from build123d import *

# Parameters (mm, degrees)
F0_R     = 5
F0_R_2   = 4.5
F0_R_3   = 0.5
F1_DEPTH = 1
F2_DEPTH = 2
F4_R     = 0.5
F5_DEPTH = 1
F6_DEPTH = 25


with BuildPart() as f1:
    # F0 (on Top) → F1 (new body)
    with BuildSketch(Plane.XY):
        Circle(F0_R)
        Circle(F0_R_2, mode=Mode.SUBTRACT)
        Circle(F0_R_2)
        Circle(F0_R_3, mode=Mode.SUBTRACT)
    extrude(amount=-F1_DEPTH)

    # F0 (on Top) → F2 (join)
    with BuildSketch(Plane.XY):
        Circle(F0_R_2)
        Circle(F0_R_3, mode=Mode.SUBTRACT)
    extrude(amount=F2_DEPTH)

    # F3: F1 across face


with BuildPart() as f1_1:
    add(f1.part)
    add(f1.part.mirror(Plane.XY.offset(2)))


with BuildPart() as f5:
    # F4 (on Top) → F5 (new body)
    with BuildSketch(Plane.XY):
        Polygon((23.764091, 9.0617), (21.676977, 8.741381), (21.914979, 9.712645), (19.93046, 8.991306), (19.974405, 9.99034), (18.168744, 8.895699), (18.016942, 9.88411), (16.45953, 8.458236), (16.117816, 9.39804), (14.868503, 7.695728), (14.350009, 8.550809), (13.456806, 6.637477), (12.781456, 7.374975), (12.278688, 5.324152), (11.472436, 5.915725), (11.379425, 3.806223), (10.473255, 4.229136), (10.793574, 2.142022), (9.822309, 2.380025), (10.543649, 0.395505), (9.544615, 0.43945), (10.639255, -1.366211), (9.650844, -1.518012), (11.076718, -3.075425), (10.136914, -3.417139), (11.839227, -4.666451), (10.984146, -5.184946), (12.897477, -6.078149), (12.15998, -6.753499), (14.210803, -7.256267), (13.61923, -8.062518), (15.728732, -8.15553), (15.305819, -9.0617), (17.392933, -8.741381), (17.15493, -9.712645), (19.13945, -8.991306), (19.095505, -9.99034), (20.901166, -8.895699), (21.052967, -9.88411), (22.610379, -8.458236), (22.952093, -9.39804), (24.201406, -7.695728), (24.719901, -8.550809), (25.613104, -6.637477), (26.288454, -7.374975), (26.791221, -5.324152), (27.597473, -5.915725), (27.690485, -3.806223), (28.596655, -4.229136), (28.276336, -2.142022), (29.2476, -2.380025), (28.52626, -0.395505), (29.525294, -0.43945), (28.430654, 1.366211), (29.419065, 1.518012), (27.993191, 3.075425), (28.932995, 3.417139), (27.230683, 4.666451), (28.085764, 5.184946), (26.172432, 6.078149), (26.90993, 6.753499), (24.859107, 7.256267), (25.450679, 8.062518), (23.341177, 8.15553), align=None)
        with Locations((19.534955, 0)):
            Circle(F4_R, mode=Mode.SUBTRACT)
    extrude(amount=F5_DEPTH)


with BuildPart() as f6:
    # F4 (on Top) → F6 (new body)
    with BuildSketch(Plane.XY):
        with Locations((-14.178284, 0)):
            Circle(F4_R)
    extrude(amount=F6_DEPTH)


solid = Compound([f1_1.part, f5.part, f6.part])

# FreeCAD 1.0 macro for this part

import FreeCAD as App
import Part
import Sketcher
from FreeCAD import Vector

doc = App.newDocument("Part")
body = doc.addObject("PartDesign::Body", "Body")

# Sketch on XY plane
sketch1 = doc.addObject("Sketcher::SketchObject", "Sketch")
body.addObject(sketch1)
sketch1.AttachmentSupport = (doc.XY_Plane, [""])
sketch1.MapMode = "FlatFace"
sketch1.addGeometry([
    Part.Circle(Vector(0, 0, 0), Vector(0, 0, 1), 5),
    Part.Circle(Vector(0, 0, 0), Vector(0, 0, 1), 0.5),
], False)
sketch1.addConstraint([
    Sketcher.Constraint("Coincident", 0, 3, -1, 1),
    Sketcher.Constraint("Coincident", 1, 3, -1, 1),
    Sketcher.Constraint("Diameter", 0, 10.0),
    Sketcher.Constraint("Diameter", 1, 1.0),
])
pad1 = doc.addObject("PartDesign::Pad", "Pad")
body.addObject(pad1)
pad1.Profile = sketch1
pad1.Length = 1
pad1.Reversed = True

# Sketch on XY plane
sketch2 = doc.addObject("Sketcher::SketchObject", "Sketch001")
body.addObject(sketch2)
sketch2.AttachmentSupport = (doc.XY_Plane, [""])
sketch2.MapMode = "FlatFace"
sketch2.addGeometry([
    Part.Circle(Vector(0, 0, 0), Vector(0, 0, 1), 4.5),
    Part.Circle(Vector(0, 0, 0), Vector(0, 0, 1), 0.5),
], False)
sketch2.addConstraint([
    Sketcher.Constraint("Coincident", 0, 3, -1, 1),
    Sketcher.Constraint("Coincident", 1, 3, -1, 1),
    Sketcher.Constraint("Diameter", 0, 9.0),
    Sketcher.Constraint("Diameter", 1, 1.0),
])
pad2 = doc.addObject("PartDesign::Pad", "Pad001")
body.addObject(pad2)
pad2.Profile = sketch2
pad2.Length = 2
body2 = doc.addObject("PartDesign::Body", "Body001")
doc.recompute()

body2.BaseFeature = body
doc.recompute()

mirroring = doc.addObject("Part::Mirroring", "Mirroring")
mirroring.Source = body
mirroring.Base = Vector(0, 0, 2)
mirroring.Normal = Vector(0, 0, 1)
body3 = doc.addObject("PartDesign::Body", "Body002")
body3.BaseFeature = mirroring
boolean = doc.addObject("PartDesign::Boolean", "Boolean")
body2.addObject(boolean)
boolean.Type = "Fuse"
boolean.addObjects([body3])
doc.recompute()
body4 = doc.addObject("PartDesign::Body", "Body003")

# Sketch on XY plane
sketch3 = doc.addObject("Sketcher::SketchObject", "Sketch002")
body4.addObject(sketch3)
sketch3.AttachmentSupport = (doc.getObject("XY_Plane003"), [""])
sketch3.MapMode = "FlatFace"
sketch3.addGeometry([
    Part.LineSegment(Vector(23.8, 9.1, 0), Vector(21.7, 8.7, 0)),  # 0
    Part.LineSegment(Vector(21.7, 8.7, 0), Vector(21.9, 9.7, 0)),  # 1
    Part.LineSegment(Vector(21.9, 9.7, 0), Vector(19.9, 9, 0)),  # 2
    Part.LineSegment(Vector(19.9, 9, 0), Vector(20, 10, 0)),  # 3
    Part.LineSegment(Vector(20, 10, 0), Vector(18.2, 8.9, 0)),  # 4
    Part.LineSegment(Vector(18.2, 8.9, 0), Vector(18, 9.9, 0)),  # 5
    Part.LineSegment(Vector(18, 9.9, 0), Vector(16.5, 8.5, 0)),  # 6
    Part.LineSegment(Vector(16.5, 8.5, 0), Vector(16.1, 9.4, 0)),  # 7
    Part.LineSegment(Vector(16.1, 9.4, 0), Vector(14.9, 7.7, 0)),  # 8
    Part.LineSegment(Vector(14.9, 7.7, 0), Vector(14.4, 8.6, 0)),  # 9
    Part.LineSegment(Vector(14.4, 8.6, 0), Vector(13.5, 6.6, 0)),  # 10
    Part.LineSegment(Vector(13.5, 6.6, 0), Vector(12.8, 7.4, 0)),  # 11
    Part.LineSegment(Vector(12.8, 7.4, 0), Vector(12.3, 5.3, 0)),  # 12
    Part.LineSegment(Vector(12.3, 5.3, 0), Vector(11.5, 5.9, 0)),  # 13
    Part.LineSegment(Vector(11.5, 5.9, 0), Vector(11.4, 3.8, 0)),  # 14
    Part.LineSegment(Vector(11.4, 3.8, 0), Vector(10.5, 4.2, 0)),  # 15
    Part.LineSegment(Vector(10.5, 4.2, 0), Vector(10.8, 2.1, 0)),  # 16
    Part.LineSegment(Vector(10.8, 2.1, 0), Vector(9.8, 2.4, 0)),  # 17
    Part.LineSegment(Vector(9.8, 2.4, 0), Vector(10.5, 0.4, 0)),  # 18
    Part.LineSegment(Vector(10.5, 0.4, 0), Vector(9.5, 0.4, 0)),  # 19
    Part.LineSegment(Vector(9.5, 0.4, 0), Vector(10.6, -1.4, 0)),  # 20
    Part.LineSegment(Vector(10.6, -1.4, 0), Vector(9.7, -1.5, 0)),  # 21
    Part.LineSegment(Vector(9.7, -1.5, 0), Vector(11.1, -3.1, 0)),  # 22
    Part.LineSegment(Vector(11.1, -3.1, 0), Vector(10.1, -3.4, 0)),  # 23
    Part.LineSegment(Vector(10.1, -3.4, 0), Vector(11.8, -4.7, 0)),  # 24
    Part.LineSegment(Vector(11.8, -4.7, 0), Vector(11, -5.2, 0)),  # 25
    Part.LineSegment(Vector(11, -5.2, 0), Vector(12.9, -6.1, 0)),  # 26
    Part.LineSegment(Vector(12.9, -6.1, 0), Vector(12.2, -6.8, 0)),  # 27
    Part.LineSegment(Vector(12.2, -6.8, 0), Vector(14.2, -7.3, 0)),  # 28
    Part.LineSegment(Vector(14.2, -7.3, 0), Vector(13.6, -8.1, 0)),  # 29
    Part.LineSegment(Vector(13.6, -8.1, 0), Vector(15.7, -8.2, 0)),  # 30
    Part.LineSegment(Vector(15.7, -8.2, 0), Vector(15.3, -9.1, 0)),  # 31
    Part.LineSegment(Vector(15.3, -9.1, 0), Vector(17.4, -8.7, 0)),  # 32
    Part.LineSegment(Vector(17.4, -8.7, 0), Vector(17.2, -9.7, 0)),  # 33
    Part.LineSegment(Vector(17.2, -9.7, 0), Vector(19.1, -9, 0)),  # 34
    Part.LineSegment(Vector(19.1, -9, 0), Vector(19.1, -10, 0)),  # 35
    Part.LineSegment(Vector(19.1, -10, 0), Vector(20.9, -8.9, 0)),  # 36
    Part.LineSegment(Vector(20.9, -8.9, 0), Vector(21.1, -9.9, 0)),  # 37
    Part.LineSegment(Vector(21.1, -9.9, 0), Vector(22.6, -8.5, 0)),  # 38
    Part.LineSegment(Vector(22.6, -8.5, 0), Vector(23, -9.4, 0)),  # 39
    Part.LineSegment(Vector(23, -9.4, 0), Vector(24.2, -7.7, 0)),  # 40
    Part.LineSegment(Vector(24.2, -7.7, 0), Vector(24.7, -8.6, 0)),  # 41
    Part.LineSegment(Vector(24.7, -8.6, 0), Vector(25.6, -6.6, 0)),  # 42
    Part.LineSegment(Vector(25.6, -6.6, 0), Vector(26.3, -7.4, 0)),  # 43
    Part.LineSegment(Vector(26.3, -7.4, 0), Vector(26.8, -5.3, 0)),  # 44
    Part.LineSegment(Vector(26.8, -5.3, 0), Vector(27.6, -5.9, 0)),  # 45
    Part.LineSegment(Vector(27.6, -5.9, 0), Vector(27.7, -3.8, 0)),  # 46
    Part.LineSegment(Vector(27.7, -3.8, 0), Vector(28.6, -4.2, 0)),  # 47
    Part.LineSegment(Vector(28.6, -4.2, 0), Vector(28.3, -2.1, 0)),  # 48
    Part.LineSegment(Vector(28.3, -2.1, 0), Vector(29.2, -2.4, 0)),  # 49
    Part.LineSegment(Vector(29.2, -2.4, 0), Vector(28.5, -0.4, 0)),  # 50
    Part.LineSegment(Vector(28.5, -0.4, 0), Vector(29.5, -0.4, 0)),  # 51
    Part.LineSegment(Vector(29.5, -0.4, 0), Vector(28.4, 1.4, 0)),  # 52
    Part.LineSegment(Vector(28.4, 1.4, 0), Vector(29.4, 1.5, 0)),  # 53
    Part.LineSegment(Vector(29.4, 1.5, 0), Vector(28, 3.1, 0)),  # 54
    Part.LineSegment(Vector(28, 3.1, 0), Vector(28.9, 3.4, 0)),  # 55
    Part.LineSegment(Vector(28.9, 3.4, 0), Vector(27.2, 4.7, 0)),  # 56
    Part.LineSegment(Vector(27.2, 4.7, 0), Vector(28.1, 5.2, 0)),  # 57
    Part.LineSegment(Vector(28.1, 5.2, 0), Vector(26.2, 6.1, 0)),  # 58
    Part.LineSegment(Vector(26.2, 6.1, 0), Vector(26.9, 6.8, 0)),  # 59
    Part.LineSegment(Vector(26.9, 6.8, 0), Vector(24.9, 7.3, 0)),  # 60
    Part.LineSegment(Vector(24.9, 7.3, 0), Vector(25.5, 8.1, 0)),  # 61
    Part.LineSegment(Vector(25.5, 8.1, 0), Vector(23.3, 8.2, 0)),  # 62
    Part.LineSegment(Vector(23.3, 8.2, 0), Vector(23.8, 9.1, 0)),  # 63
    Part.Circle(Vector(19.5, 0, 0), Vector(0, 0, 1), 0.5),  # 64
], False)
sketch3.addConstraint([
    Sketcher.Constraint("Coincident", 0, 2, 1, 1),
    Sketcher.Constraint("Coincident", 1, 2, 2, 1),
    Sketcher.Constraint("Coincident", 2, 2, 3, 1),
    Sketcher.Constraint("Coincident", 3, 2, 4, 1),
    Sketcher.Constraint("Coincident", 4, 2, 5, 1),
    Sketcher.Constraint("Coincident", 5, 2, 6, 1),
    Sketcher.Constraint("Coincident", 6, 2, 7, 1),
    Sketcher.Constraint("Coincident", 7, 2, 8, 1),
    Sketcher.Constraint("Coincident", 8, 2, 9, 1),
    Sketcher.Constraint("Coincident", 9, 2, 10, 1),
    Sketcher.Constraint("Coincident", 10, 2, 11, 1),
    Sketcher.Constraint("Coincident", 11, 2, 12, 1),
    Sketcher.Constraint("Coincident", 12, 2, 13, 1),
    Sketcher.Constraint("Coincident", 13, 2, 14, 1),
    Sketcher.Constraint("Coincident", 14, 2, 15, 1),
    Sketcher.Constraint("Coincident", 15, 2, 16, 1),
    Sketcher.Constraint("Coincident", 16, 2, 17, 1),
    Sketcher.Constraint("Coincident", 17, 2, 18, 1),
    Sketcher.Constraint("Coincident", 18, 2, 19, 1),
    Sketcher.Constraint("Coincident", 19, 2, 20, 1),
    Sketcher.Constraint("Coincident", 20, 2, 21, 1),
    Sketcher.Constraint("Coincident", 21, 2, 22, 1),
    Sketcher.Constraint("Coincident", 22, 2, 23, 1),
    Sketcher.Constraint("Coincident", 23, 2, 24, 1),
    Sketcher.Constraint("Coincident", 24, 2, 25, 1),
    Sketcher.Constraint("Coincident", 25, 2, 26, 1),
    Sketcher.Constraint("Coincident", 26, 2, 27, 1),
    Sketcher.Constraint("Coincident", 27, 2, 28, 1),
    Sketcher.Constraint("Coincident", 28, 2, 29, 1),
    Sketcher.Constraint("Coincident", 29, 2, 30, 1),
    Sketcher.Constraint("Coincident", 30, 2, 31, 1),
    Sketcher.Constraint("Coincident", 31, 2, 32, 1),
    Sketcher.Constraint("Coincident", 32, 2, 33, 1),
    Sketcher.Constraint("Coincident", 33, 2, 34, 1),
    Sketcher.Constraint("Coincident", 34, 2, 35, 1),
    Sketcher.Constraint("Coincident", 35, 2, 36, 1),
    Sketcher.Constraint("Coincident", 36, 2, 37, 1),
    Sketcher.Constraint("Coincident", 37, 2, 38, 1),
    Sketcher.Constraint("Coincident", 38, 2, 39, 1),
    Sketcher.Constraint("Coincident", 39, 2, 40, 1),
    Sketcher.Constraint("Coincident", 40, 2, 41, 1),
    Sketcher.Constraint("Coincident", 41, 2, 42, 1),
    Sketcher.Constraint("Coincident", 42, 2, 43, 1),
    Sketcher.Constraint("Coincident", 43, 2, 44, 1),
    Sketcher.Constraint("Coincident", 44, 2, 45, 1),
    Sketcher.Constraint("Coincident", 45, 2, 46, 1),
    Sketcher.Constraint("Coincident", 46, 2, 47, 1),
    Sketcher.Constraint("Coincident", 47, 2, 48, 1),
    Sketcher.Constraint("Coincident", 48, 2, 49, 1),
    Sketcher.Constraint("Coincident", 49, 2, 50, 1),
    Sketcher.Constraint("Coincident", 50, 2, 51, 1),
    Sketcher.Constraint("Coincident", 51, 2, 52, 1),
    Sketcher.Constraint("Coincident", 52, 2, 53, 1),
    Sketcher.Constraint("Coincident", 53, 2, 54, 1),
    Sketcher.Constraint("Coincident", 54, 2, 55, 1),
    Sketcher.Constraint("Coincident", 55, 2, 56, 1),
    Sketcher.Constraint("Coincident", 56, 2, 57, 1),
    Sketcher.Constraint("Coincident", 57, 2, 58, 1),
    Sketcher.Constraint("Coincident", 58, 2, 59, 1),
    Sketcher.Constraint("Coincident", 59, 2, 60, 1),
    Sketcher.Constraint("Coincident", 60, 2, 61, 1),
    Sketcher.Constraint("Coincident", 61, 2, 62, 1),
    Sketcher.Constraint("Coincident", 62, 2, 63, 1),
    Sketcher.Constraint("Coincident", 63, 2, 0, 1),
    Sketcher.Constraint("PointOnObject", 64, 3, -1),
    Sketcher.Constraint("Perpendicular", 0, 16),
    Sketcher.Constraint("Perpendicular", 1, 17),
    Sketcher.Constraint("Perpendicular", 2, 18),
    Sketcher.Constraint("Perpendicular", 3, 19),
    Sketcher.Constraint("Perpendicular", 4, 20),
    Sketcher.Constraint("Perpendicular", 5, 21),
    Sketcher.Constraint("Perpendicular", 6, 22),
    Sketcher.Constraint("Perpendicular", 7, 23),
    Sketcher.Constraint("Perpendicular", 8, 24),
    Sketcher.Constraint("Perpendicular", 9, 25),
    Sketcher.Constraint("Perpendicular", 10, 26),
    Sketcher.Constraint("Perpendicular", 11, 27),
    Sketcher.Constraint("Perpendicular", 12, 28),
    Sketcher.Constraint("Perpendicular", 13, 29),
    Sketcher.Constraint("Perpendicular", 14, 30),
    Sketcher.Constraint("Perpendicular", 15, 31),
    Sketcher.Constraint("Perpendicular", 16, 32),
    Sketcher.Constraint("Perpendicular", 17, 33),
    Sketcher.Constraint("Perpendicular", 18, 34),
    Sketcher.Constraint("Perpendicular", 19, 35),
    Sketcher.Constraint("Perpendicular", 20, 36),
    Sketcher.Constraint("Perpendicular", 21, 37),
    Sketcher.Constraint("Perpendicular", 22, 38),
    Sketcher.Constraint("Perpendicular", 23, 39),
    Sketcher.Constraint("Perpendicular", 24, 40),
    Sketcher.Constraint("Perpendicular", 25, 41),
    Sketcher.Constraint("Perpendicular", 26, 42),
    Sketcher.Constraint("Perpendicular", 27, 43),
    Sketcher.Constraint("Perpendicular", 28, 44),
    Sketcher.Constraint("Perpendicular", 29, 45),
    Sketcher.Constraint("Perpendicular", 30, 46),
    Sketcher.Constraint("Perpendicular", 31, 47),
    Sketcher.Constraint("Perpendicular", 32, 48),
    Sketcher.Constraint("Perpendicular", 33, 49),
    Sketcher.Constraint("Perpendicular", 34, 50),
    Sketcher.Constraint("Perpendicular", 35, 51),
    Sketcher.Constraint("Perpendicular", 36, 52),
    Sketcher.Constraint("Perpendicular", 37, 53),
    Sketcher.Constraint("Perpendicular", 38, 54),
    Sketcher.Constraint("Perpendicular", 39, 55),
    Sketcher.Constraint("Perpendicular", 40, 56),
    Sketcher.Constraint("Perpendicular", 41, 57),
    Sketcher.Constraint("Perpendicular", 42, 58),
    Sketcher.Constraint("Perpendicular", 43, 59),
    Sketcher.Constraint("Perpendicular", 44, 60),
    Sketcher.Constraint("Perpendicular", 45, 61),
    Sketcher.Constraint("Perpendicular", 46, 62),
    Sketcher.Constraint("Perpendicular", 47, 63),
    Sketcher.Constraint("Equal", 0, 2),
    Sketcher.Constraint("Equal", 1, 3),
    Sketcher.Constraint("Equal", 2, 4),
    Sketcher.Constraint("Equal", 3, 5),
    Sketcher.Constraint("Equal", 4, 6),
    Sketcher.Constraint("Equal", 5, 7),
    Sketcher.Constraint("Equal", 6, 8),
    Sketcher.Constraint("Equal", 7, 9),
    Sketcher.Constraint("Equal", 8, 10),
    Sketcher.Constraint("Equal", 9, 11),
    Sketcher.Constraint("Equal", 10, 12),
    Sketcher.Constraint("Equal", 11, 13),
    Sketcher.Constraint("Equal", 12, 14),
    Sketcher.Constraint("Equal", 13, 15),
    Sketcher.Constraint("Equal", 14, 16),
    Sketcher.Constraint("Equal", 15, 17),
    Sketcher.Constraint("Equal", 16, 18),
    Sketcher.Constraint("Equal", 17, 19),
    Sketcher.Constraint("Equal", 18, 20),
    Sketcher.Constraint("Equal", 19, 21),
    Sketcher.Constraint("Equal", 20, 22),
    Sketcher.Constraint("Equal", 21, 23),
    Sketcher.Constraint("Equal", 22, 24),
    Sketcher.Constraint("Equal", 23, 25),
    Sketcher.Constraint("Equal", 24, 26),
    Sketcher.Constraint("Equal", 25, 27),
    Sketcher.Constraint("Equal", 26, 28),
    Sketcher.Constraint("Equal", 27, 29),
    Sketcher.Constraint("Equal", 28, 30),
    Sketcher.Constraint("Equal", 29, 31),
    Sketcher.Constraint("Equal", 30, 32),
    Sketcher.Constraint("Equal", 31, 33),
    Sketcher.Constraint("Equal", 32, 34),
    Sketcher.Constraint("Equal", 33, 35),
    Sketcher.Constraint("Equal", 34, 36),
    Sketcher.Constraint("Equal", 35, 37),
    Sketcher.Constraint("Equal", 36, 38),
    Sketcher.Constraint("Equal", 37, 39),
    Sketcher.Constraint("Equal", 38, 40),
    Sketcher.Constraint("Equal", 39, 41),
    Sketcher.Constraint("Equal", 40, 42),
    Sketcher.Constraint("Equal", 41, 43),
    Sketcher.Constraint("Equal", 42, 44),
    Sketcher.Constraint("Equal", 43, 45),
    Sketcher.Constraint("Equal", 44, 46),
    Sketcher.Constraint("Equal", 45, 47),
    Sketcher.Constraint("Equal", 46, 48),
    Sketcher.Constraint("Equal", 47, 49),
    Sketcher.Constraint("Equal", 48, 50),
    Sketcher.Constraint("Equal", 49, 51),
    Sketcher.Constraint("Equal", 50, 52),
    Sketcher.Constraint("Equal", 51, 53),
    Sketcher.Constraint("Equal", 52, 54),
    Sketcher.Constraint("Equal", 53, 55),
    Sketcher.Constraint("Equal", 54, 56),
    Sketcher.Constraint("Equal", 55, 57),
    Sketcher.Constraint("Equal", 56, 58),
    Sketcher.Constraint("Equal", 57, 59),
    Sketcher.Constraint("Equal", 58, 60),
    Sketcher.Constraint("Equal", 59, 61),
    Sketcher.Constraint("Diameter", 64, 1.0),
    Sketcher.Constraint("Distance", 1, 0.999999),
    Sketcher.Constraint("DistanceY", -1, 1, 4, 2, 8.895699),
    Sketcher.Constraint("DistanceY", 27, 2, -1, 1, 6.753499),
    Sketcher.Constraint("DistanceY", 31, 2, -1, 1, 9.0617),
    Sketcher.Constraint("DistanceY", 36, 2, -1, 1, 8.895699),
    Sketcher.Constraint("DistanceX", -1, 1, 41, 2, 24.719901),
    Sketcher.Constraint("DistanceX", -1, 1, 49, 2, 29.2476),
    Sketcher.Constraint("Distance", 0, 2.111551),
    Sketcher.Constraint("DistanceY", -1, 1, 0, 2, 8.741381),
    Sketcher.Constraint("DistanceX", -1, 1, 1, 2, 21.914979),
    Sketcher.Constraint("DistanceX", -1, 1, 2, 2, 19.93046),
    Sketcher.Constraint("DistanceY", -1, 1, 3, 2, 9.99034),
    Sketcher.Constraint("DistanceX", -1, 1, 5, 2, 18.016942),
    Sketcher.Constraint("DistanceY", -1, 1, 5, 2, 9.88411),
    Sketcher.Constraint("DistanceX", -1, 1, 6, 2, 16.45953),
    Sketcher.Constraint("DistanceY", -1, 1, 7, 2, 9.39804),
    Sketcher.Constraint("DistanceY", -1, 1, 9, 2, 8.550809),
    Sketcher.Constraint("DistanceX", -1, 1, 12, 2, 12.278688),
    Sketcher.Constraint("DistanceY", -1, 1, 12, 2, 5.324152),
    Sketcher.Constraint("DistanceX", -1, 1, 29, 2, 13.61923),
    Sketcher.Constraint("DistanceX", -1, 1, 64, 3, 19.534955),
])
pad3 = doc.addObject("PartDesign::Pad", "Pad002")
body4.addObject(pad3)
pad3.Profile = sketch3
pad3.Length = 1
body5 = doc.addObject("PartDesign::Body", "Body004")

# Sketch on XY plane
sketch4 = doc.addObject("Sketcher::SketchObject", "Sketch003")
body5.addObject(sketch4)
sketch4.AttachmentSupport = (doc.getObject("XY_Plane004"), [""])
sketch4.MapMode = "FlatFace"
sketch4.addGeometry(Part.Circle(Vector(-14.2, 0, 0), Vector(0, 0, 1), 0.5), False)
sketch4.addConstraint([
    Sketcher.Constraint("PointOnObject", 0, 3, -1),
    Sketcher.Constraint("Diameter", 0, 1.0),
    Sketcher.Constraint("DistanceX", 0, 3, -1, 1, 14.178284),
])
pad4 = doc.addObject("PartDesign::Pad", "Pad003")
body5.addObject(pad4)
pad4.Profile = sketch4
pad4.Length = 25
mirroring.Visibility = False

doc.recompute()
